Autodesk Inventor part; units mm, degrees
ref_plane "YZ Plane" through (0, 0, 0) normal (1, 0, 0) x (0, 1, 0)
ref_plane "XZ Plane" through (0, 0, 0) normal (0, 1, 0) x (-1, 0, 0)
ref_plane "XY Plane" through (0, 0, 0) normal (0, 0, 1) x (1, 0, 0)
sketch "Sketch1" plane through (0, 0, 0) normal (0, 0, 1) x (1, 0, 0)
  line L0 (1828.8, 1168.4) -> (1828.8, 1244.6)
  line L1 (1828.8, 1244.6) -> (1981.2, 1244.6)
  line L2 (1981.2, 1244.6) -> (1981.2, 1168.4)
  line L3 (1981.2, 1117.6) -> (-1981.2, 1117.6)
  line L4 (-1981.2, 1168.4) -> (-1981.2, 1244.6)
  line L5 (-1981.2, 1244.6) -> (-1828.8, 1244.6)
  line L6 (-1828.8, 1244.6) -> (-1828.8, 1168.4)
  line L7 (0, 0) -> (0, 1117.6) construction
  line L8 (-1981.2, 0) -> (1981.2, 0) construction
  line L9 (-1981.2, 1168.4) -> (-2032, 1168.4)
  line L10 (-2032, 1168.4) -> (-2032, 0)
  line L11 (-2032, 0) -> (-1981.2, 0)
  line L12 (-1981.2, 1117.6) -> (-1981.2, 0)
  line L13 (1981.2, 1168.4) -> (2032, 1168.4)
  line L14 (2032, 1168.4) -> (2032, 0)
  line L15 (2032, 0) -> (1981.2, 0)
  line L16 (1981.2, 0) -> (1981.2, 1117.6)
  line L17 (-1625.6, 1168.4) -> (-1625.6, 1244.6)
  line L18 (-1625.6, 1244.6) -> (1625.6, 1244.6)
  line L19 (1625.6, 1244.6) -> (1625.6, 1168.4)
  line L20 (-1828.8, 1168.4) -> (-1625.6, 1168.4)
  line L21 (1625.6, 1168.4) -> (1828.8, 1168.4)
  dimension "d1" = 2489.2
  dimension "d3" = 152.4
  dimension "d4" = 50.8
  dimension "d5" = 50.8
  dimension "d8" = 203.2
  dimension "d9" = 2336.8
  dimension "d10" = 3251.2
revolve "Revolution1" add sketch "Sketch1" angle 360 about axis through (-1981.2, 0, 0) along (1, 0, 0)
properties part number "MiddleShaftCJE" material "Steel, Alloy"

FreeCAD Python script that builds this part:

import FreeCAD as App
import Part
import Sketcher
from FreeCAD import Vector
Q = App.Units.Quantity

doc = App.newDocument("Part")
body = doc.addObject("PartDesign::Body", "Body")

sketch1 = body.newObject("Sketcher::SketchObject", "Sketch")
sketch1.AttachmentSupport = (doc.getObject("XY_Plane"), [""])
sketch1.MapMode = "FlatFace"
sketch1.addGeometry([
    Part.LineSegment(Vector(1829, 1245, 0), Vector(1829, 1168, 0)),
    Part.LineSegment(Vector(1829, 1168, 0), Vector(1626, 1168, 0)),
    Part.LineSegment(Vector(1626, 1168, 0), Vector(1626, 1245, 0)),
    Part.LineSegment(Vector(1626, 1245, 0), Vector(-1626, 1245, 0)),
    Part.LineSegment(Vector(-1626, 1245, 0), Vector(-1626, 1168, 0)),
    Part.LineSegment(Vector(-1626, 1168, 0), Vector(-1829, 1168, 0)),
    Part.LineSegment(Vector(-1829, 1168, 0), Vector(-1829, 1245, 0)),
    Part.LineSegment(Vector(-1829, 1245, 0), Vector(-1981, 1245, 0)),
    Part.LineSegment(Vector(-1981, 1245, 0), Vector(-1981, 1168, 0)),
    Part.LineSegment(Vector(-1981, 1168, 0), Vector(-2032, 1168, 0)),
    Part.LineSegment(Vector(-2032, 1168, 0), Vector(-2032, 0, 0)),
    Part.LineSegment(Vector(-2032, 0, 0), Vector(-1981, 0, 0)),
    Part.LineSegment(Vector(-1981, 0, 0), Vector(-1981, 1118, 0)),
    Part.LineSegment(Vector(-1981, 1118, 0), Vector(1981, 1118, 0)),
    Part.LineSegment(Vector(1981, 1118, 0), Vector(1981, 0, 0)),
    Part.LineSegment(Vector(1981, 0, 0), Vector(2032, 0, 0)),
    Part.LineSegment(Vector(2032, 0, 0), Vector(2032, 1168, 0)),
    Part.LineSegment(Vector(2032, 1168, 0), Vector(1981, 1168, 0)),
    Part.LineSegment(Vector(1981, 1168, 0), Vector(1981, 1245, 0)),
    Part.LineSegment(Vector(1981, 1245, 0), Vector(1829, 1245, 0)),
], False)
sketch1.addConstraint([
    Sketcher.Constraint("Coincident", 0, 2, 1, 1),
    Sketcher.Constraint("Coincident", 1, 2, 2, 1),
    Sketcher.Constraint("Coincident", 2, 2, 3, 1),
    Sketcher.Constraint("Coincident", 3, 2, 4, 1),
    Sketcher.Constraint("Coincident", 4, 2, 5, 1),
    Sketcher.Constraint("Coincident", 5, 2, 6, 1),
    Sketcher.Constraint("Coincident", 6, 2, 7, 1),
    Sketcher.Constraint("Coincident", 7, 2, 8, 1),
    Sketcher.Constraint("Coincident", 8, 2, 9, 1),
    Sketcher.Constraint("Coincident", 9, 2, 10, 1),
    Sketcher.Constraint("Coincident", 10, 2, 11, 1),
    Sketcher.Constraint("Coincident", 11, 2, 12, 1),
    Sketcher.Constraint("Coincident", 12, 2, 13, 1),
    Sketcher.Constraint("Coincident", 13, 2, 14, 1),
    Sketcher.Constraint("Coincident", 14, 2, 15, 1),
    Sketcher.Constraint("Coincident", 15, 2, 16, 1),
    Sketcher.Constraint("Coincident", 16, 2, 17, 1),
    Sketcher.Constraint("Coincident", 17, 2, 18, 1),
    Sketcher.Constraint("Coincident", 18, 2, 19, 1),
    Sketcher.Constraint("Coincident", 19, 2, 0, 1),
    Sketcher.Constraint("Vertical", 0),
    Sketcher.Constraint("Horizontal", 1),
    Sketcher.Constraint("Vertical", 2),
    Sketcher.Constraint("Horizontal", 3),
    Sketcher.Constraint("Vertical", 4),
    Sketcher.Constraint("Horizontal", 5),
    Sketcher.Constraint("Vertical", 6),
    Sketcher.Constraint("Horizontal", 7),
    Sketcher.Constraint("Vertical", 8),
    Sketcher.Constraint("Horizontal", 9),
    Sketcher.Constraint("Vertical", 10),
    Sketcher.Constraint("Horizontal", 11),
    Sketcher.Constraint("Vertical", 12),
    Sketcher.Constraint("Horizontal", 13),
    Sketcher.Constraint("Vertical", 14),
    Sketcher.Constraint("Horizontal", 15),
    Sketcher.Constraint("Vertical", 16),
    Sketcher.Constraint("Horizontal", 17),
    Sketcher.Constraint("Vertical", 18),
    Sketcher.Constraint("Horizontal", 19),
    Sketcher.Constraint("Symmetric", 11, 2, 14, 2, -1, 1),
    Sketcher.Constraint("Symmetric", 1, 2, 4, 2, -2),
    Sketcher.Constraint("Symmetric", 10, 2, 15, 2, -2),
    Sketcher.Constraint("Symmetric", 8, 2, 17, 2, -2),
    Sketcher.Constraint("Symmetric", 6, 2, 19, 2, -2),
    Sketcher.Constraint("Horizontal", 3, 2, 6, 2),
    Sketcher.Constraint("Horizontal", 5, 2, 8, 2),
    Sketcher.Constraint("Vertical", 8, 2, 11, 2),
    Sketcher.Constraint("DistanceX", 1, 2, 1, 1, Q("8 in")),
    Sketcher.Constraint("DistanceX", 3, 2, 3, 1, Q("128 in")),
    Sketcher.Constraint("DistanceX", 7, 2, 7, 1, Q("6 in")),
    Sketcher.Constraint("DistanceX", 9, 2, 9, 1, Q("2 in")),
    Sketcher.Constraint("DistanceY", 12, 2, 8, 2, Q("2 in")),
    Sketcher.Constraint("DistanceY", 0, 2, 0, 1, Q("3 in")),
    Sketcher.Constraint("DistanceY", 10, 2, 10, 1, Q("46 in")),
])
revolution = body.newObject("PartDesign::Revolution", "Revolution")
revolution.Profile = sketch1
revolution.ReferenceAxis = (sketch1, ["H_Axis"])
revolution.Angle = 360

doc.recompute()
